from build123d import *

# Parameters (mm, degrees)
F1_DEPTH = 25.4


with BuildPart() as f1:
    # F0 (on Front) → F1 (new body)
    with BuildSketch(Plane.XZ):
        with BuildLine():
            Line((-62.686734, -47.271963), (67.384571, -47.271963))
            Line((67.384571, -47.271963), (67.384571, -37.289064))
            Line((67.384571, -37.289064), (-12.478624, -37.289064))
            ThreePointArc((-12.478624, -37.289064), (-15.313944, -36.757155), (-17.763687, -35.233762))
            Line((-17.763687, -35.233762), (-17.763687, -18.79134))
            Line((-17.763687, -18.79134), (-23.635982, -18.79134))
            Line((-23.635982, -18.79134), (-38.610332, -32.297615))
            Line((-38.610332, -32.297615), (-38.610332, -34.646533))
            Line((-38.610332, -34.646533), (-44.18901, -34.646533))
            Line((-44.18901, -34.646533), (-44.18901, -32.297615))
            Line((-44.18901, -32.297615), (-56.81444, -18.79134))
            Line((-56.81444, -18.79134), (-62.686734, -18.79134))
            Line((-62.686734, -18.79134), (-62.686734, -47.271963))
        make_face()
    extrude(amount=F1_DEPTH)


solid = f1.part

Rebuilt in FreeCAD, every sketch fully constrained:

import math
import FreeCAD as App
import Part
import Sketcher
from FreeCAD import Vector
Q = App.Units.Quantity

doc = App.newDocument("Part")
params = doc.addObject("Spreadsheet::Sheet", "Params")
for row, (alias, value) in enumerate([
    ("pad1_length", "1 in"),
], start=1):
    params.set(f"A{row}", alias)
    params.set(f"B{row}", "=" + value)
    params.setAlias(f"B{row}", alias)

body = doc.addObject("PartDesign::Body", "Body")

sketch1 = doc.addObject("Sketcher::SketchObject", "Sketch")
body.addObject(sketch1)
sketch1.AttachmentSupport = (doc.XZ_Plane, [""])
sketch1.MapMode = "FlatFace"
sketch1.addGeometry([
    Part.LineSegment(Vector(-62.686734, -47.271963, 0), Vector(67.384571, -47.271963, 0)),
    Part.LineSegment(Vector(67.384571, -47.271963, 0), Vector(67.384571, -37.289064, 0)),
    Part.LineSegment(Vector(67.384571, -37.289064, 0), Vector(-12.478624, -37.289064, 0)),
    Part.ArcOfCircle(Part.Circle(Vector(-12.478625, -29.466333, 0), Vector(0, 0, 1), 7.822731), math.radians(-132.501012), math.radians(-89.999994)),
    Part.LineSegment(Vector(-17.763687, -35.233762, 0), Vector(-17.763687, -18.79134, 0)),
    Part.LineSegment(Vector(-17.763687, -18.79134, 0), Vector(-23.635982, -18.79134, 0)),
    Part.LineSegment(Vector(-23.635982, -18.79134, 0), Vector(-38.610332, -32.297615, 0)),
    Part.LineSegment(Vector(-38.610332, -32.297615, 0), Vector(-38.610332, -34.646533, 0)),
    Part.LineSegment(Vector(-38.610332, -34.646533, 0), Vector(-44.18901, -34.646533, 0)),
    Part.LineSegment(Vector(-44.18901, -34.646533, 0), Vector(-44.18901, -32.297615, 0)),
    Part.LineSegment(Vector(-44.18901, -32.297615, 0), Vector(-56.81444, -18.79134, 0)),
    Part.LineSegment(Vector(-56.81444, -18.79134, 0), Vector(-62.686734, -18.79134, 0)),
    Part.LineSegment(Vector(-62.686734, -18.79134, 0), Vector(-62.686734, -47.271963, 0)),
], False)
sketch1.addConstraint([
    Sketcher.Constraint("Coincident", 0, 2, 1, 1),
    Sketcher.Constraint("Coincident", 1, 2, 2, 1),
    Sketcher.Constraint("Tangent", 2, 2, 3, 2),
    Sketcher.Constraint("Coincident", 3, 1, 4, 1),
    Sketcher.Constraint("Coincident", 4, 2, 5, 1),
    Sketcher.Constraint("Coincident", 5, 2, 6, 1),
    Sketcher.Constraint("Coincident", 6, 2, 7, 1),
    Sketcher.Constraint("Coincident", 7, 2, 8, 1),
    Sketcher.Constraint("Coincident", 8, 2, 9, 1),
    Sketcher.Constraint("Coincident", 9, 2, 10, 1),
    Sketcher.Constraint("Coincident", 10, 2, 11, 1),
    Sketcher.Constraint("Coincident", 11, 2, 12, 1),
    Sketcher.Constraint("Coincident", 12, 2, 0, 1),
    Sketcher.Constraint("Horizontal", 0),
    Sketcher.Constraint("Vertical", 1),
    Sketcher.Constraint("Horizontal", 2),
    Sketcher.Constraint("Vertical", 4),
    Sketcher.Constraint("Horizontal", 5),
    Sketcher.Constraint("Vertical", 7),
    Sketcher.Constraint("Horizontal", 8),
    Sketcher.Constraint("Vertical", 9),
    Sketcher.Constraint("Horizontal", 11),
    Sketcher.Constraint("Vertical", 12),
    Sketcher.Constraint("Horizontal", 6, 2, 9, 2),
    Sketcher.Constraint("Horizontal", 5, 2, 10, 2),
    Sketcher.Constraint("Equal", 5, 11),
    Sketcher.Constraint("Radius", 3, Q("7.822731 mm")),
    Sketcher.Constraint("DistanceY", 1, 1, 1, 2, Q("9.982899 mm")),
    Sketcher.Constraint("Distance", 10, Q("18.4884 mm")),
    Sketcher.Constraint("DistanceX", 8, 2, 8, 1, Q("5.578678 mm")),
    Sketcher.Constraint("DistanceY", 4, 1, 4, 2, Q("16.442422 mm")),
    Sketcher.Constraint("DistanceY", 0, 2, 3, 1, Q("12.038201 mm")),
    Sketcher.Constraint("Distance", 6, Q("20.16558 mm")),
    Sketcher.Constraint("DistanceX", 0, 1, 0, 2, Q("130.071305 mm")),
    Sketcher.Constraint("DistanceX", 2, 2, 2, 1, Q("79.863195 mm")),
    Sketcher.Constraint("DistanceX", 5, 2, 5, 1, Q("5.872295 mm")),
    Sketcher.Constraint("DistanceY", 7, 2, 7, 1, Q("2.348918 mm")),
    Sketcher.Constraint("DistanceX", -1, 1, 0, 2, Q("67.384571 mm")),
    Sketcher.Constraint("DistanceY", 3, 1, -1, 1, Q("35.233762 mm")),
])
pad1 = doc.addObject("PartDesign::Pad", "Pad")
body.addObject(pad1)
pad1.Profile = sketch1
pad1.setExpression("Length", "Params.pad1_length")

doc.recompute()
